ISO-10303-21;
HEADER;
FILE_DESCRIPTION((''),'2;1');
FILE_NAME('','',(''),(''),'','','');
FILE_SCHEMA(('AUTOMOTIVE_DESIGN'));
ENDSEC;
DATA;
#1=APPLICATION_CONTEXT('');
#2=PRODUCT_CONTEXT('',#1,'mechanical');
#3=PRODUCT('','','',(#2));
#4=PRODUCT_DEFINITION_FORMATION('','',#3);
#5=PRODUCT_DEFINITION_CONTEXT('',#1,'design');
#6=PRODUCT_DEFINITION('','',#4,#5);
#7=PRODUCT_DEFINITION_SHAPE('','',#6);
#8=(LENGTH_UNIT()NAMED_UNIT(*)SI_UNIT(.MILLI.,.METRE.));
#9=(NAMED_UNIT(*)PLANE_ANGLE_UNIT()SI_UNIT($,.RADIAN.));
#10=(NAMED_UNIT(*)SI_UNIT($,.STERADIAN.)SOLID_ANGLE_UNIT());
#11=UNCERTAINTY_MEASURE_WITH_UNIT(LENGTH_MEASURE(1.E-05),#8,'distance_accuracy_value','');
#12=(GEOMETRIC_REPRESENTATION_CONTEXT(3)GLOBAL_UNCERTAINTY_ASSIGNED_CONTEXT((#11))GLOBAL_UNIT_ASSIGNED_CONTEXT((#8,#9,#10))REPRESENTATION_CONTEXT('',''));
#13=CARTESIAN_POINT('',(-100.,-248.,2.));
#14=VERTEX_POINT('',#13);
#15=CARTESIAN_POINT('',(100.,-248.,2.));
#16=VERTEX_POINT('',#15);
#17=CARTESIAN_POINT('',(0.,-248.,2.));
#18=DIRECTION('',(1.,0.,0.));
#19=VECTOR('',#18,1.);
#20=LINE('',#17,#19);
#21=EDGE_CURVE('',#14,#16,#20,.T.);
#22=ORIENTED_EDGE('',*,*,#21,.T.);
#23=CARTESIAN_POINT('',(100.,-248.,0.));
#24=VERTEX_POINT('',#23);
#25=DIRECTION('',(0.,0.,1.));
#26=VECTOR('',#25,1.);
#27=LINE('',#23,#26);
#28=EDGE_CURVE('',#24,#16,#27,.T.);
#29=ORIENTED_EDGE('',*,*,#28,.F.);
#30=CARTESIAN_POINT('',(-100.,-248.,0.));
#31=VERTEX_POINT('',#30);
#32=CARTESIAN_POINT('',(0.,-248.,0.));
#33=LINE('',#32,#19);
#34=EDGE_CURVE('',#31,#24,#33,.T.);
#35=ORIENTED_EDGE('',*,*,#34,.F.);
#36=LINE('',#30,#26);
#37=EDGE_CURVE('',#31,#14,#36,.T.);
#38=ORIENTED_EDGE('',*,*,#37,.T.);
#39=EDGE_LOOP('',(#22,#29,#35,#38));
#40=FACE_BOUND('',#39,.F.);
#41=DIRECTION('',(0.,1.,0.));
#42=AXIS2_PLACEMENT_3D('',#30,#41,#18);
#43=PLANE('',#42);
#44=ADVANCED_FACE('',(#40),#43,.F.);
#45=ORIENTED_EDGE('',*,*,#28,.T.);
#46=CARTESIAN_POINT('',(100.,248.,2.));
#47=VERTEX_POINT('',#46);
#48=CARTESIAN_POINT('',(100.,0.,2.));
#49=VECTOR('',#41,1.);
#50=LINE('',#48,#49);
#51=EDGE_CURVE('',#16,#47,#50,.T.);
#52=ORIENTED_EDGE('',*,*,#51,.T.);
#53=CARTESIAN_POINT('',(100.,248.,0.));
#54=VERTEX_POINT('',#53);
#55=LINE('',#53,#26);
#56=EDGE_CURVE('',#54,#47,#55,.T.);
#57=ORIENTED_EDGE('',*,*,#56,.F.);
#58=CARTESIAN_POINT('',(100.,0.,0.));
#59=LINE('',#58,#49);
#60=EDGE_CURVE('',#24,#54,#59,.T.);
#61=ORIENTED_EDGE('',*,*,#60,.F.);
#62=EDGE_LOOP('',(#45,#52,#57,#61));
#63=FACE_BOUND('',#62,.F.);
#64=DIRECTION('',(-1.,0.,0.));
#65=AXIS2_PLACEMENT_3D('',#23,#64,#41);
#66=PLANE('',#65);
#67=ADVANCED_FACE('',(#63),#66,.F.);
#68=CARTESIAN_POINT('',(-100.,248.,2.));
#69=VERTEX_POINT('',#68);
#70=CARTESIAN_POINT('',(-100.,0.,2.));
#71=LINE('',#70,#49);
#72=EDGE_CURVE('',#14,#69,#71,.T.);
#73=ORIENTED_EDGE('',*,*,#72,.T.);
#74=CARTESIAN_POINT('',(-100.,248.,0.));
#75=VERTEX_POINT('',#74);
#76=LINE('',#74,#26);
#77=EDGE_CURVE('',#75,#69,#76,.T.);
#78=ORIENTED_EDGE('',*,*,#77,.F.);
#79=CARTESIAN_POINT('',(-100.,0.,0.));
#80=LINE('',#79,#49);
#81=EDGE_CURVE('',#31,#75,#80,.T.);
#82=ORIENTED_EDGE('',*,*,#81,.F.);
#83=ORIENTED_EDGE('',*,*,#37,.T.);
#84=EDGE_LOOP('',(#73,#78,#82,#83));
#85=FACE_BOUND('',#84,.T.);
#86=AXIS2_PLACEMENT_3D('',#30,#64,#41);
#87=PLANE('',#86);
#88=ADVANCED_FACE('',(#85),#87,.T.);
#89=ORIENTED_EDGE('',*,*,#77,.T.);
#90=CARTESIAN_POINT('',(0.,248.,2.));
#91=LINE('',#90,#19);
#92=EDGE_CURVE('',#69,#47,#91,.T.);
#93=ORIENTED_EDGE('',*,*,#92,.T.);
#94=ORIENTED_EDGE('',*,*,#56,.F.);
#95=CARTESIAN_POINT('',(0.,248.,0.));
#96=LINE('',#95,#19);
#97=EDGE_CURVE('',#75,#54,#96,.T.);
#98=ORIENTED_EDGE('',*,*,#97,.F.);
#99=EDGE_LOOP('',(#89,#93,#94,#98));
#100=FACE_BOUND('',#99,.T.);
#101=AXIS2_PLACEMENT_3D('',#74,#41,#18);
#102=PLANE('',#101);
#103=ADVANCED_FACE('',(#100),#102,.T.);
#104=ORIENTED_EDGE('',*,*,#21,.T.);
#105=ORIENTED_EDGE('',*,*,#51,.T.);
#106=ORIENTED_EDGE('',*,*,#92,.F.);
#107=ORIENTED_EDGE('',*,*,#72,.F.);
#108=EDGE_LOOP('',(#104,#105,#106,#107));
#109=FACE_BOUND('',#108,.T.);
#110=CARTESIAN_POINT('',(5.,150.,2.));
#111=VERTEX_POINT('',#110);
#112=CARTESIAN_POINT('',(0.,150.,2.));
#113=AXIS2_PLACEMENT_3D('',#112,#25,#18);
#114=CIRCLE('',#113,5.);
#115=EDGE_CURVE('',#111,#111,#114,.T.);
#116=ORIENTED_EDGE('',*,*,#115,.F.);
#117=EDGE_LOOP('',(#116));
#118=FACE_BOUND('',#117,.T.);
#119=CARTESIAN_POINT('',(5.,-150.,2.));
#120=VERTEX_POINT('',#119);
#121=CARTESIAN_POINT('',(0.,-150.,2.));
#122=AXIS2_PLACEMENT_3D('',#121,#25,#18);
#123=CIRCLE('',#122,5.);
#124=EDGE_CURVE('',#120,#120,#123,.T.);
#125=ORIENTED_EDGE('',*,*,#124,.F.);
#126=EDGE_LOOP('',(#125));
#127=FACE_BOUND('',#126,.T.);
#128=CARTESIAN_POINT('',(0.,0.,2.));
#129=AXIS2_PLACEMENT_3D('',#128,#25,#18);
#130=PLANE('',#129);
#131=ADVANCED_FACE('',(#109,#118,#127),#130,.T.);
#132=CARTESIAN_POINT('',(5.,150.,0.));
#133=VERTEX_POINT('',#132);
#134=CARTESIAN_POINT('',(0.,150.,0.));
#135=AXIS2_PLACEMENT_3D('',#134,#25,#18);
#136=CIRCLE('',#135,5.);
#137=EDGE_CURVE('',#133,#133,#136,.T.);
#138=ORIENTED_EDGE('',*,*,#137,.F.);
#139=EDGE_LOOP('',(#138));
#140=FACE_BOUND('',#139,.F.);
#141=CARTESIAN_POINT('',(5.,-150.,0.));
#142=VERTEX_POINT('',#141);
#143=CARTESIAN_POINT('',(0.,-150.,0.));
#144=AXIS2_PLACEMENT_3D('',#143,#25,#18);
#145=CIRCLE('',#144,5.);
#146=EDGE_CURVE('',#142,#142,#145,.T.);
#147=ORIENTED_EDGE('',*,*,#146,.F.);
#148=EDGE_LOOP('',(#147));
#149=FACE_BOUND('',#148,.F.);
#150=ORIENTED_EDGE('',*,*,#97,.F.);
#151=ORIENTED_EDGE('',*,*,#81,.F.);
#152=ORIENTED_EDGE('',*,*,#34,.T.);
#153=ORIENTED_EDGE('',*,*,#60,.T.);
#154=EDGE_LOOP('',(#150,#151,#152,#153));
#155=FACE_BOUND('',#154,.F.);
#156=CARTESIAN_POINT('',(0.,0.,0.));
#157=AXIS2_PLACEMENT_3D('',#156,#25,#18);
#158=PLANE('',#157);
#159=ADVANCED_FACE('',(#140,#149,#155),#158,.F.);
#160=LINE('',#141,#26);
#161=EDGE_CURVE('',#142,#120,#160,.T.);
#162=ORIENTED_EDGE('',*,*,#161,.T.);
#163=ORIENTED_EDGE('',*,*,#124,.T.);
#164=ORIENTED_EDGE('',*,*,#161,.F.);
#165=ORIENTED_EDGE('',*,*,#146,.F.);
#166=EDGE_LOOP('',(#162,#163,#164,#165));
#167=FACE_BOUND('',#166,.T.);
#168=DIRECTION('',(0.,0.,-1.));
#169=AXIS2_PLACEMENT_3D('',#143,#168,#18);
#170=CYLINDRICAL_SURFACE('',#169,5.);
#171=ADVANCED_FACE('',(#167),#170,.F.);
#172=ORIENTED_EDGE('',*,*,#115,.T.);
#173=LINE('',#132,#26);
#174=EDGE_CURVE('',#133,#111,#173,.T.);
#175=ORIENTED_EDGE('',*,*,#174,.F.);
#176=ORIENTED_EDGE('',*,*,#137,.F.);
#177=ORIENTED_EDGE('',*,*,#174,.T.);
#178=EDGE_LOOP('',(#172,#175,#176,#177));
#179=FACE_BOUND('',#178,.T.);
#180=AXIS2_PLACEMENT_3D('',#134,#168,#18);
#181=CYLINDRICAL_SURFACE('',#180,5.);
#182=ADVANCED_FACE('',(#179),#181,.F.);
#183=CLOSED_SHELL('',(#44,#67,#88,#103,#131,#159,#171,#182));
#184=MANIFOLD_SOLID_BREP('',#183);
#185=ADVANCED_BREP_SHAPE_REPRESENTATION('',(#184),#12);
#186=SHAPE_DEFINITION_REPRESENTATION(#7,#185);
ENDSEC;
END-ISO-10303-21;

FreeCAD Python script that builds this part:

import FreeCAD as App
import Part
import Sketcher
from FreeCAD import Vector


def add_polygon(sketch, points):
    """Adds a closed chain of lines whose ends are joined by coincident constraints."""
    first, n = sketch.GeometryCount, len(points)
    for a, b in zip(points, points[1:] + points[:1]):
        sketch.addGeometry(Part.LineSegment(App.Vector(*a, 0), App.Vector(*b, 0)), False)
    for i in range(n):
        sketch.addConstraint(Sketcher.Constraint("Coincident", first + i, 2, first + (i + 1) % n, 1))

doc = App.newDocument("Part")
params = doc.addObject("Spreadsheet::Sheet", "Params")
for row, (alias, value) in enumerate([
    ("sketch1_diameter", "10 mm"),
    ("sketch1_width", "200 mm"),
    ("sketch1_height", "496 mm"),
    ("pad1_length", "2 mm"),
], start=1):
    params.set(f"A{row}", alias)
    params.set(f"B{row}", "=" + value)
    params.setAlias(f"B{row}", alias)

body = doc.addObject("PartDesign::Body", "Body")

# Sketch on XY plane
sketch1 = body.newObject("Sketcher::SketchObject", "Sketch")
sketch1.AttachmentSupport = (doc.getObject("XY_Plane"), [""])
sketch1.MapMode = "FlatFace"
add_polygon(sketch1, [(-100, 248), (-100, -248), (100, -248), (100, 248)])  # lines 0-3
sketch1.addGeometry(Part.Circle(Vector(0, -150, 0), Vector(0, 0, 1), 5), False)  # 4
sketch1.addGeometry(Part.Circle(Vector(0, 150, 0), Vector(0, 0, 1), 5), False)  # 5
sketch1.addConstraint([
    Sketcher.Constraint("Vertical", 0),
    Sketcher.Constraint("Horizontal", 1),
    Sketcher.Constraint("Vertical", 2),
    Sketcher.Constraint("Horizontal", 3),
    Sketcher.Constraint("Equal", 4, 5),
    Sketcher.Constraint("Symmetric", 4, 3, 5, 3, -1, 1),
    Sketcher.Constraint("Symmetric", 0, 2, 2, 2, -1, 1),
    Sketcher.Constraint("PointOnObject", 4, 3, -2),
    Sketcher.Constraint("Diameter", 4, 10.0),
    Sketcher.Constraint("DistanceX", 1, 1, 1, 2, 200.0),
    Sketcher.Constraint("DistanceY", 0, 2, 0, 1, 496.0),
    Sketcher.Constraint("DistanceY", 4, 3, -1, 1, 150.0),
])
sketch1.setExpression("Constraints[12]", "Params.sketch1_diameter")
sketch1.setExpression("Constraints[13]", "Params.sketch1_width")
sketch1.setExpression("Constraints[14]", "Params.sketch1_height")
pad1 = body.newObject("PartDesign::Pad", "Pad")
pad1.Profile = sketch1
pad1.setExpression("Length", "Params.pad1_length")

doc.recompute()
